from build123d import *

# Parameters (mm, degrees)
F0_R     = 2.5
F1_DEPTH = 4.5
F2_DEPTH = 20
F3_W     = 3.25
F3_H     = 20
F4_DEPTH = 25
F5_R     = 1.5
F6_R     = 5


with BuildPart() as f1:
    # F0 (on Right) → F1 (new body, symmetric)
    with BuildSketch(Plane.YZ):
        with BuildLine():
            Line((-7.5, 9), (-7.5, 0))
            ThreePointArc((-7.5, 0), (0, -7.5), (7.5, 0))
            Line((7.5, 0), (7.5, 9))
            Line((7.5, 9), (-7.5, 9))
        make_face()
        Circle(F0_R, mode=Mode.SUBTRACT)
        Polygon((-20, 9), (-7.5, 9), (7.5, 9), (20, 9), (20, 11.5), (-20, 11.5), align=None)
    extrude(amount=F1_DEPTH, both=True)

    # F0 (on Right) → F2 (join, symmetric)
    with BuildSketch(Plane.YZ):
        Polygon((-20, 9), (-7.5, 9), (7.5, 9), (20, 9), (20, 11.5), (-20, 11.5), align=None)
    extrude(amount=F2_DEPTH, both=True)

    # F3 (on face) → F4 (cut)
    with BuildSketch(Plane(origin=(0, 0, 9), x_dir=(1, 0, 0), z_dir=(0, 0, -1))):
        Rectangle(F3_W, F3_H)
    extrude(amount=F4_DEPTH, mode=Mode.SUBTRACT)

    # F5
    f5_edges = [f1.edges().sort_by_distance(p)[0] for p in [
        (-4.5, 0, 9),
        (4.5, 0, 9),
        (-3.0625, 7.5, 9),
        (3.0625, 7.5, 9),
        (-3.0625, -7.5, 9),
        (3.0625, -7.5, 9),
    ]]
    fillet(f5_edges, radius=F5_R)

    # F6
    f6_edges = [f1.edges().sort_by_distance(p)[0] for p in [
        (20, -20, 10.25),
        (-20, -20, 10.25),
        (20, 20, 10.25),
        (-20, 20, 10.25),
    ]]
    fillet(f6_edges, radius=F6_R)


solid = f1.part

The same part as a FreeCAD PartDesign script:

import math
import FreeCAD as App
import Part
import Sketcher

V = App.Vector


def edges_at(feature, points):
    """Names of the edges that pass closest to the given points."""
    edges = feature.Shape.Edges
    near = lambda p: min(range(len(edges)), key=lambda i: edges[i].distToShape(Part.Vertex(*p))[0])
    return sorted({f"Edge{near(p) + 1}" for p in points})

doc = App.newDocument("Part")
body = doc.addObject("PartDesign::Body", "Body")

sketch1 = body.newObject("Sketcher::SketchObject", "Sketch")
sketch1.AttachmentSupport = (doc.getObject("YZ_Plane"), [""])
sketch1.MapMode = "FlatFace"
sketch1.addGeometry([
    Part.LineSegment(V(-7.5, 9, 0), V(-7.5, 0, 0)),
    Part.ArcOfCircle(Part.Circle(V(0, 0, 0), V(0, 0, 1), 7.5), math.radians(180), math.radians(360)),
    Part.LineSegment(V(7.5, 0, 0), V(7.5, 9, 0)),
    Part.LineSegment(V(7.5, 9, 0), V(20, 9, 0)),
    Part.LineSegment(V(20, 9, 0), V(20, 11.5, 0)),
    Part.LineSegment(V(20, 11.5, 0), V(-20, 11.5, 0)),
    Part.LineSegment(V(-20, 11.5, 0), V(-20, 9, 0)),
    Part.LineSegment(V(-20, 9, 0), V(-7.5, 9, 0)),
    Part.Circle(V(0, 0, 0), V(0, 0, 1), 2.5),
], False)
sketch1.addConstraint([
    Sketcher.Constraint("Tangent", 0, 2, 1, 1),
    Sketcher.Constraint("Tangent", 1, 2, 2, 1),
    Sketcher.Constraint("Coincident", 2, 2, 3, 1),
    Sketcher.Constraint("Coincident", 3, 2, 4, 1),
    Sketcher.Constraint("Coincident", 4, 2, 5, 1),
    Sketcher.Constraint("Coincident", 5, 2, 6, 1),
    Sketcher.Constraint("Coincident", 6, 2, 7, 1),
    Sketcher.Constraint("Coincident", 7, 2, 0, 1),
    Sketcher.Constraint("Vertical", 0),
    Sketcher.Constraint("Vertical", 2),
    Sketcher.Constraint("Horizontal", 3),
    Sketcher.Constraint("Vertical", 4),
    Sketcher.Constraint("Horizontal", 5),
    Sketcher.Constraint("Vertical", 6),
    Sketcher.Constraint("Horizontal", 7),
    Sketcher.Constraint("Coincident", 1, 3, -1, 1),
    Sketcher.Constraint("Coincident", 8, 3, -1, 1),
    Sketcher.Constraint("Symmetric", 3, 2, 6, 2, -2),
    Sketcher.Constraint("Diameter", 8, 5.0),
    Sketcher.Constraint("Radius", 1, 7.5),
    Sketcher.Constraint("DistanceX", 5, 2, 5, 1, 40.0),
    Sketcher.Constraint("DistanceY", 0, 2, 0, 1, 9.0),
    Sketcher.Constraint("DistanceY", 4, 1, 4, 2, 2.5),
])
pad1 = body.newObject("PartDesign::Pad", "Pad")
pad1.Profile = sketch1
pad1.Length = 9
pad1.Midplane = True

sketch2 = body.newObject("Sketcher::SketchObject", "Sketch001")
sketch2.AttachmentSupport = (doc.getObject("YZ_Plane"), [""])
sketch2.MapMode = "FlatFace"
sketch2.addGeometry([
    Part.LineSegment(V(-20, 9, 0), V(20, 9, 0)),
    Part.LineSegment(V(20, 9, 0), V(20, 11.5, 0)),
    Part.LineSegment(V(20, 11.5, 0), V(-20, 11.5, 0)),
    Part.LineSegment(V(-20, 11.5, 0), V(-20, 9, 0)),
], False)
sketch2.addConstraint([
    Sketcher.Constraint("Coincident", 0, 2, 1, 1),
    Sketcher.Constraint("Coincident", 1, 2, 2, 1),
    Sketcher.Constraint("Coincident", 2, 2, 3, 1),
    Sketcher.Constraint("Coincident", 3, 2, 0, 1),
    Sketcher.Constraint("Horizontal", 0),
    Sketcher.Constraint("Vertical", 1),
    Sketcher.Constraint("Horizontal", 2),
    Sketcher.Constraint("Vertical", 3),
    Sketcher.Constraint("DistanceX", 0, 1, 0, 2, 40.0),
    Sketcher.Constraint("DistanceY", 1, 1, 1, 2, 2.5),
    Sketcher.Constraint("DistanceX", -1, 1, 0, 2, 20.0),
    Sketcher.Constraint("DistanceY", -1, 1, 0, 2, 9.0),
])
pad2 = body.newObject("PartDesign::Pad", "Pad001")
pad2.Profile = sketch2
pad2.Length = 40
pad2.Midplane = True

sketch3 = body.newObject("Sketcher::SketchObject", "Sketch002")
sketch3.AttachmentSupport = (doc.getObject("XY_Plane"), [""])
sketch3.MapMode = "FlatFace"
sketch3.AttachmentOffset = App.Placement(V(0, 0, 9), App.Rotation())
sketch3.addGeometry([
    Part.LineSegment(V(-1.625, -10, 0), V(-1.625, 10, 0)),
    Part.LineSegment(V(-1.625, 10, 0), V(1.625, 10, 0)),
    Part.LineSegment(V(1.625, 10, 0), V(1.625, -10, 0)),
    Part.LineSegment(V(1.625, -10, 0), V(-1.625, -10, 0)),
], False)
sketch3.addConstraint([
    Sketcher.Constraint("Coincident", 0, 2, 1, 1),
    Sketcher.Constraint("Coincident", 1, 2, 2, 1),
    Sketcher.Constraint("Coincident", 2, 2, 3, 1),
    Sketcher.Constraint("Coincident", 3, 2, 0, 1),
    Sketcher.Constraint("Vertical", 0),
    Sketcher.Constraint("Horizontal", 1),
    Sketcher.Constraint("Vertical", 2),
    Sketcher.Constraint("Horizontal", 3),
    Sketcher.Constraint("Symmetric", 0, 2, 2, 2, -1, 1),
    Sketcher.Constraint("DistanceY", 0, 1, 0, 2, 20.0),
    Sketcher.Constraint("DistanceX", 1, 1, 1, 2, 3.25),
])
pocket1 = body.newObject("PartDesign::Pocket", "Pocket")
pocket1.Profile = sketch3
pocket1.Length = 25
doc.recompute()

fillet = body.newObject("PartDesign::Fillet", "Fillet")
fillet.Base = (pocket1, edges_at(pocket1, [
    (-4.5, 0, 9),
    (4.5, 0, 9),
    (-3.062, 7.5, 9),
    (3.062, 7.5, 9),
    (-3.062, -7.5, 9),
    (3.062, -7.5, 9),
]))
fillet.Radius = 1.5
doc.recompute()

fillet2 = body.newObject("PartDesign::Fillet", "Fillet001")
fillet2.Base = (fillet, edges_at(fillet, [
    (20, -20, 10.25),
    (-20, -20, 10.25),
    (20, 20, 10.25),
    (-20, 20, 10.25),
]))
fillet2.Radius = 5

doc.recompute()
